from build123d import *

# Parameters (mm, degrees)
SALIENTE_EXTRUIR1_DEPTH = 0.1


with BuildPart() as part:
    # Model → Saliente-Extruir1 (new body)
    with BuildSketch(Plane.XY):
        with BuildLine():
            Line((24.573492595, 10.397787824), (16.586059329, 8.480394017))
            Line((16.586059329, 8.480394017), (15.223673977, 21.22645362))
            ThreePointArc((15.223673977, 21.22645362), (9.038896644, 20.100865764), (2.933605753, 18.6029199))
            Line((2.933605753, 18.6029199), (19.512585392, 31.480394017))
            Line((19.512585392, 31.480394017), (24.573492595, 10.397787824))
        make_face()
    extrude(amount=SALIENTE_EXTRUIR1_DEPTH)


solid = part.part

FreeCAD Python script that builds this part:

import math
import FreeCAD as App
import Part
import Sketcher

V = App.Vector
Q = App.Units.Quantity

doc = App.newDocument("Part")
body = doc.addObject("PartDesign::Body", "Body")

sketch1 = body.newObject("Sketcher::SketchObject", "Sketch")
sketch1.AttachmentSupport = (doc.getObject("XY_Plane"), [""])
sketch1.MapMode = "FlatFace"
sketch1.addGeometry([
    Part.LineSegment(V(17, 8, 0), V(25, 10, 0)),
    Part.LineSegment(V(25, 10, 0), V(20, 31, 0)),
    Part.LineSegment(V(20, 31, 0), V(3, 19, 0)),
    Part.ArcOfCircle(Part.Circle(V(31, -81, 0), V(0, 0, 1), 104), math.radians(98.58), math.radians(105.52)),
    Part.LineSegment(V(15, 21, 0), V(17, 8, 0)),
], False)
sketch1.addConstraint([
    Sketcher.Constraint("Coincident", 0, 2, 1, 1),
    Sketcher.Constraint("Coincident", 1, 2, 2, 1),
    Sketcher.Constraint("Coincident", 2, 2, 3, 2),
    Sketcher.Constraint("Coincident", 3, 1, 4, 1),
    Sketcher.Constraint("Coincident", 4, 2, 0, 1),
    Sketcher.Constraint("Perpendicular", 0, 1),
    Sketcher.Constraint("DistanceY", 4, 2, 1, 2, Q("23 mm")),
    Sketcher.Constraint("Radius", 3, Q("103.791697 mm")),
    Sketcher.Constraint("DistanceX", 0, 2, 3, 3, Q("6.133399 mm")),
    Sketcher.Constraint("DistanceX", -1, 1, 3, 3, Q("30.706892 mm")),
    Sketcher.Constraint("DistanceY", -1, 1, 2, 2, Q("18.60292 mm")),
    Sketcher.Constraint("DistanceX", -1, 1, 4, 2, Q("16.586059 mm")),
    Sketcher.Constraint("DistanceY", 3, 3, 1, 2, Q("112.884279 mm")),
    Sketcher.Constraint("DistanceX", 2, 2, 1, 2, Q("16.57898 mm")),
    Sketcher.Constraint("DistanceX", 3, 1, 1, 2, Q("4.288911 mm")),
    Sketcher.Constraint("DistanceY", 3, 1, 1, 2, Q("10.25394 mm")),
])
pad1 = body.newObject("PartDesign::Pad", "Pad")
pad1.Profile = sketch1
pad1.Length = 0.1

doc.recompute()
